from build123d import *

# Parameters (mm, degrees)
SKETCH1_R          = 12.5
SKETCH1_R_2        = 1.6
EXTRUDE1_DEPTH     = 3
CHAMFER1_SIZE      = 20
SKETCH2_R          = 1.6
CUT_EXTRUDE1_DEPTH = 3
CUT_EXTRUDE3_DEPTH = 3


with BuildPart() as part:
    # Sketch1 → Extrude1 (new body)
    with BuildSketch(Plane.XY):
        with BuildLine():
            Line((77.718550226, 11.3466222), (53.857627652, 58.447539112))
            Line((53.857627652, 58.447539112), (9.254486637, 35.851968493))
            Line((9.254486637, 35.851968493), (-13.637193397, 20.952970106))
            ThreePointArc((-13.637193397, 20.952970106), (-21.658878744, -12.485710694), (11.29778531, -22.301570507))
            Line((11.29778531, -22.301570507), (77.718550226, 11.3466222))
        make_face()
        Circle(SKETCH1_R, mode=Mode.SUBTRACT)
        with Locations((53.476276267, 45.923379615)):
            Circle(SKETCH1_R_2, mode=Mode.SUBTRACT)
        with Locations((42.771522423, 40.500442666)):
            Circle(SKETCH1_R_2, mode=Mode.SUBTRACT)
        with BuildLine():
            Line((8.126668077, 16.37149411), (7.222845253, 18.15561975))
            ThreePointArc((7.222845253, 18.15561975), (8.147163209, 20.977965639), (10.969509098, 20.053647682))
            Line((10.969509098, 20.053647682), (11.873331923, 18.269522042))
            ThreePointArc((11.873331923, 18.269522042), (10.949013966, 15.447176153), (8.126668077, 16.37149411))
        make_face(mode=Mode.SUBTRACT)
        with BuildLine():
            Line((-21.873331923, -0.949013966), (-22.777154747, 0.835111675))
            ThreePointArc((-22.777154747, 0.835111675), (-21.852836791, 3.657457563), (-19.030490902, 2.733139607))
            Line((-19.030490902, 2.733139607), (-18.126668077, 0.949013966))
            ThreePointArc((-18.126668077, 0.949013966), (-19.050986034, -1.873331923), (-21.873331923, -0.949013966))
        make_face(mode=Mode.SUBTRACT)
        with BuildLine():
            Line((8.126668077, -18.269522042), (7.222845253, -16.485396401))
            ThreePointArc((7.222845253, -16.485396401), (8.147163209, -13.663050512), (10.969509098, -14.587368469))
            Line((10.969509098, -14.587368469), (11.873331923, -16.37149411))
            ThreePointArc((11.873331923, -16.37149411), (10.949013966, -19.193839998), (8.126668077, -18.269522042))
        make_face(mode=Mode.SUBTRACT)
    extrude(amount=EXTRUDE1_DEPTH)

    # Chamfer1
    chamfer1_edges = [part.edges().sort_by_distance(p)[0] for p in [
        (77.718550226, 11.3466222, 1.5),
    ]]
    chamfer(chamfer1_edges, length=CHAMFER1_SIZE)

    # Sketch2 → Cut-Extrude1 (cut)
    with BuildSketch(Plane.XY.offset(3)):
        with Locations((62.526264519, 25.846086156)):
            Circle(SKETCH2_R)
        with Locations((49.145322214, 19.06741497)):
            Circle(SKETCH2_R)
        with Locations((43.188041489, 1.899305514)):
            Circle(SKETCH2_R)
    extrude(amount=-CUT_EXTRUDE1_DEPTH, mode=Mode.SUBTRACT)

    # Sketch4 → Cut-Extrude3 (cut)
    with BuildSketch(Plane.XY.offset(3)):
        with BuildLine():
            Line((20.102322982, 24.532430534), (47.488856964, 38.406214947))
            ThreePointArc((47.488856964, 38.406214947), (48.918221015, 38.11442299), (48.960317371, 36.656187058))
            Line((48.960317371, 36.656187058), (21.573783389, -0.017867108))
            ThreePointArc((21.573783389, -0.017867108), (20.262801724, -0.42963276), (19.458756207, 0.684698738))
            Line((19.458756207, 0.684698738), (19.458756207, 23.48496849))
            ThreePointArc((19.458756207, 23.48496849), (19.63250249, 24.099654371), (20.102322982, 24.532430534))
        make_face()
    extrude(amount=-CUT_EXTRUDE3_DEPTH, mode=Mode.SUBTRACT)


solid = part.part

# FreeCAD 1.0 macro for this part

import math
import FreeCAD as App
import Part
import Sketcher
Q = App.Units.Quantity


def edges_at(feature, points):
    """Names of the edges that pass closest to the given points."""
    edges = feature.Shape.Edges
    near = lambda p: min(range(len(edges)), key=lambda i: edges[i].distToShape(Part.Vertex(*p))[0])
    return sorted({f"Edge{near(p) + 1}" for p in points})

doc = App.newDocument("Part")
body = doc.addObject("PartDesign::Body", "Body")

# Sketch on XY plane
sketch1 = body.newObject("Sketcher::SketchObject", "Sketch")
sketch1.AttachmentSupport = (doc.getObject("XY_Plane"), [""])
sketch1.MapMode = "FlatFace"
sketch1.addGeometry([
    Part.LineSegment(App.Vector(77.71855, 11.346622, 0), App.Vector(53.857628, 58.447539, 0)),  # 0
    Part.LineSegment(App.Vector(53.857628, 58.447539, 0), App.Vector(9.254487, 35.851968, 0)),  # 1
    Part.LineSegment(App.Vector(9.254487, 35.851968, 0), App.Vector(-13.637193, 20.95297, 0)),  # 2
    Part.ArcOfCircle(Part.Circle(App.Vector(0, 0, 0), App.Vector(0, 0, 1), 25), math.radians(123.058), math.radians(296.866384)),  # 3
    Part.LineSegment(App.Vector(11.297785, -22.301571, 0), App.Vector(77.71855, 11.346622, 0)),  # 4
    Part.ArcOfCircle(Part.Circle(App.Vector(10, -17.320508, 0), App.Vector(0, 0, 1), 2.1), math.radians(-153.133616), math.radians(26.866384)),  # 5
    Part.LineSegment(App.Vector(8.126668, -18.269522, 0), App.Vector(7.222845, -16.485396, 0)),  # 6
    Part.ArcOfCircle(Part.Circle(App.Vector(9.096177, -15.536382, 0), App.Vector(0, 0, 1), 2.1), math.radians(26.866384), math.radians(206.866385)),  # 7
    Part.LineSegment(App.Vector(10.969509, -14.587368, 0), App.Vector(11.873332, -16.371494, 0)),  # 8
    Part.ArcOfCircle(Part.Circle(App.Vector(-20, 0, 0), App.Vector(0, 0, 1), 2.1), math.radians(-153.133616), math.radians(26.866384)),  # 9
    Part.LineSegment(App.Vector(-21.873332, -0.949014, 0), App.Vector(-22.777155, 0.835112, 0)),  # 10
    Part.ArcOfCircle(Part.Circle(App.Vector(-20.903823, 1.784126, 0), App.Vector(0, 0, 1), 2.1), math.radians(26.866384), math.radians(206.866384)),  # 11
    Part.LineSegment(App.Vector(-19.030491, 2.73314, 0), App.Vector(-18.126668, 0.949014, 0)),  # 12
    Part.Circle(App.Vector(0, 0, 0), App.Vector(0, 0, 1), 12.5),  # 13
    Part.ArcOfCircle(Part.Circle(App.Vector(10, 17.320508, 0), App.Vector(0, 0, 1), 2.1), math.radians(-153.133616), math.radians(26.866384)),  # 14
    Part.LineSegment(App.Vector(8.126668, 16.371494, 0), App.Vector(7.222845, 18.15562, 0)),  # 15
    Part.ArcOfCircle(Part.Circle(App.Vector(9.096177, 19.104634, 0), App.Vector(0, 0, 1), 2.1), math.radians(26.866384), math.radians(206.866385)),  # 16
    Part.LineSegment(App.Vector(10.969509, 20.053648, 0), App.Vector(11.873332, 18.269522, 0)),  # 17
    Part.Circle(App.Vector(42.771522, 40.500443, 0), App.Vector(0, 0, 1), 1.6),  # 18
    Part.Circle(App.Vector(53.476276, 45.92338, 0), App.Vector(0, 0, 1), 1.6),  # 19
], False)
sketch1.addConstraint([
    Sketcher.Constraint("Coincident", 0, 2, 1, 1),
    Sketcher.Constraint("Coincident", 1, 2, 2, 1),
    Sketcher.Constraint("Tangent", 2, 2, 3, 1),
    Sketcher.Constraint("Tangent", 3, 2, 4, 1),
    Sketcher.Constraint("Coincident", 4, 2, 0, 1),
    Sketcher.Constraint("Tangent", 5, 1, 6, 1),
    Sketcher.Constraint("Tangent", 6, 2, 7, 2),
    Sketcher.Constraint("Tangent", 7, 1, 8, 1),
    Sketcher.Constraint("Tangent", 8, 2, 5, 2),
    Sketcher.Constraint("Tangent", 9, 1, 10, 1),
    Sketcher.Constraint("Tangent", 10, 2, 11, 2),
    Sketcher.Constraint("Tangent", 11, 1, 12, 1),
    Sketcher.Constraint("Tangent", 12, 2, 9, 2),
    Sketcher.Constraint("Tangent", 14, 1, 15, 1),
    Sketcher.Constraint("Tangent", 15, 2, 16, 2),
    Sketcher.Constraint("Tangent", 16, 1, 17, 1),
    Sketcher.Constraint("Tangent", 17, 2, 14, 2),
    Sketcher.Constraint("Coincident", 3, 3, -1, 1),
    Sketcher.Constraint("Coincident", 13, 3, -1, 1),
    Sketcher.Constraint("Equal", 5, 7),
    Sketcher.Constraint("Equal", 7, 9),
    Sketcher.Constraint("Equal", 9, 11),
    Sketcher.Constraint("Equal", 11, 14),
    Sketcher.Constraint("Equal", 14, 16),
    Sketcher.Constraint("Equal", 18, 19),
    Sketcher.Constraint("Symmetric", 5, 3, 14, 3, -1),
    Sketcher.Constraint("PointOnObject", 9, 3, -1),
    Sketcher.Constraint("Perpendicular", 0, 1),
    Sketcher.Constraint("Parallel", 1, 4),
    Sketcher.Constraint("Perpendicular", 4, 6),
    Sketcher.Constraint("Parallel", 8, 10),
    Sketcher.Constraint("Parallel", 12, 15),
    Sketcher.Constraint("Vertical", 7, 3, 16, 3),
    Sketcher.Constraint("Equal", 8, 10),
    Sketcher.Constraint("Diameter", 13, Q("25 mm")),
    Sketcher.Constraint("Radius", 3, Q("25 mm")),
    Sketcher.Constraint("Diameter", 18, Q("3.2 mm")),
    Sketcher.Constraint("Radius", 5, Q("2.1 mm")),
    Sketcher.Constraint("Distance", 1, Q("50 mm")),
    Sketcher.Constraint("Distance", 6, Q("2 mm")),
    Sketcher.Constraint("DistanceX", -1, 1, 5, 3, Q("10 mm")),
    Sketcher.Constraint("DistanceX", 9, 3, -1, 1, Q("20 mm")),
    Sketcher.Constraint("Distance", 0, Q("52.8 mm")),
    Sketcher.Constraint("DistanceX", 16, 3, 19, 3, Q("44.380099 mm")),
    Sketcher.Constraint("Distance", 2, Q("27.313168 mm")),
    Sketcher.Constraint("DistanceY", 5, 3, -1, 1, Q("17.320508 mm")),
    Sketcher.Constraint("DistanceY", -1, 1, 19, 3, Q("45.92338 mm")),
    Sketcher.Constraint("DistanceY", -1, 1, 0, 2, Q("58.447539 mm")),
    Sketcher.Constraint("DistanceY", 16, 3, 18, 3, Q("21.395809 mm")),
    Sketcher.Constraint("DistanceX", -1, 1, 18, 3, Q("42.771522 mm")),
])
pad1 = body.newObject("PartDesign::Pad", "Pad")
pad1.Profile = sketch1
pad1.Length = 3
doc.recompute()

chamfer = body.newObject("PartDesign::Chamfer", "Chamfer")
chamfer.Base = (pad1, edges_at(pad1, [(77.719, 11.347, 1.5)]))
chamfer.Size = 20

# Sketch on XY plane
sketch2 = body.newObject("Sketcher::SketchObject", "Sketch001")
sketch2.AttachmentSupport = (doc.getObject("XY_Plane"), [""])
sketch2.MapMode = "FlatFace"
sketch2.AttachmentOffset = App.Placement(App.Vector(0, 0, 3), App.Rotation())
sketch2.addGeometry([
    Part.Circle(App.Vector(62.526265, 25.846086, 0), App.Vector(0, 0, 1), 1.6),
    Part.Circle(App.Vector(49.145322, 19.067415, 0), App.Vector(0, 0, 1), 1.6),
    Part.Circle(App.Vector(43.188041, 1.899306, 0), App.Vector(0, 0, 1), 1.6),
], False)
sketch2.addConstraint([
    Sketcher.Constraint("Equal", 0, 1),
    Sketcher.Constraint("Equal", 1, 2),
    Sketcher.Constraint("Diameter", 0, Q("3.2 mm")),
    Sketcher.Constraint("DistanceX", -1, 1, 2, 3, Q("43.188041 mm")),
    Sketcher.Constraint("DistanceY", 1, 3, 0, 3, Q("6.778671 mm")),
    Sketcher.Constraint("DistanceX", 2, 3, 1, 3, Q("5.957281 mm")),
    Sketcher.Constraint("DistanceY", 2, 3, 1, 3, Q("17.168109 mm")),
    Sketcher.Constraint("DistanceX", -1, 1, 0, 3, Q("62.526265 mm")),
    Sketcher.Constraint("DistanceY", -1, 1, 0, 3, Q("25.846086 mm")),
])
pocket1 = body.newObject("PartDesign::Pocket", "Pocket")
pocket1.Profile = sketch2
pocket1.Length = 3

# Sketch on XY plane
sketch3 = body.newObject("Sketcher::SketchObject", "Sketch002")
sketch3.AttachmentSupport = (doc.getObject("XY_Plane"), [""])
sketch3.MapMode = "FlatFace"
sketch3.AttachmentOffset = App.Placement(App.Vector(0, 0, 3), App.Rotation())
sketch3.addGeometry([
    Part.LineSegment(App.Vector(47.488857, 38.406215, 0), App.Vector(20.102323, 24.532431, 0)),  # 0
    Part.ArcOfCircle(Part.Circle(App.Vector(20.632958, 23.484968, 0), App.Vector(0, 0, 1), 1.174202), math.radians(116.866385), math.radians(180)),  # 1
    Part.LineSegment(App.Vector(19.458756, 23.484968, 0), App.Vector(19.458756, 0.684699, 0)),  # 2
    Part.ArcOfCircle(Part.Circle(App.Vector(20.632958, 0.684699, 0), App.Vector(0, 0, 1), 1.174202), math.radians(180), math.radians(323.249279)),  # 3
    Part.LineSegment(App.Vector(21.573783, -0.017867, 0), App.Vector(48.960317, 36.656187, 0)),  # 4
    Part.ArcOfCircle(Part.Circle(App.Vector(48.019492, 37.358753, 0), App.Vector(0, 0, 1), 1.174202), math.radians(-36.750721), math.radians(116.866384)),  # 5
], False)
sketch3.addConstraint([
    Sketcher.Constraint("Tangent", 0, 2, 1, 1),
    Sketcher.Constraint("Tangent", 1, 2, 2, 1),
    Sketcher.Constraint("Tangent", 2, 2, 3, 1),
    Sketcher.Constraint("Tangent", 3, 2, 4, 1),
    Sketcher.Constraint("Tangent", 4, 2, 5, 1),
    Sketcher.Constraint("Tangent", 5, 2, 0, 1),
    Sketcher.Constraint("Vertical", 2),
    Sketcher.Constraint("Equal", 1, 3),
    Sketcher.Constraint("Equal", 3, 5),
    Sketcher.Constraint("Radius", 1, Q("1.174202 mm")),
    Sketcher.Constraint("DistanceY", 2, 2, 2, 1, Q("22.80027 mm")),
    Sketcher.Constraint("DistanceY", -1, 1, 3, 3, Q("0.684699 mm")),
    Sketcher.Constraint("DistanceX", 1, 3, 5, 2, Q("26.855899 mm")),
    Sketcher.Constraint("Distance", 0, Q("30.70023 mm")),
    Sketcher.Constraint("DistanceX", -1, 1, 1, 3, Q("20.632958 mm")),
])
pocket2 = body.newObject("PartDesign::Pocket", "Pocket001")
pocket2.Profile = sketch3
pocket2.Length = 3

doc.recompute()
